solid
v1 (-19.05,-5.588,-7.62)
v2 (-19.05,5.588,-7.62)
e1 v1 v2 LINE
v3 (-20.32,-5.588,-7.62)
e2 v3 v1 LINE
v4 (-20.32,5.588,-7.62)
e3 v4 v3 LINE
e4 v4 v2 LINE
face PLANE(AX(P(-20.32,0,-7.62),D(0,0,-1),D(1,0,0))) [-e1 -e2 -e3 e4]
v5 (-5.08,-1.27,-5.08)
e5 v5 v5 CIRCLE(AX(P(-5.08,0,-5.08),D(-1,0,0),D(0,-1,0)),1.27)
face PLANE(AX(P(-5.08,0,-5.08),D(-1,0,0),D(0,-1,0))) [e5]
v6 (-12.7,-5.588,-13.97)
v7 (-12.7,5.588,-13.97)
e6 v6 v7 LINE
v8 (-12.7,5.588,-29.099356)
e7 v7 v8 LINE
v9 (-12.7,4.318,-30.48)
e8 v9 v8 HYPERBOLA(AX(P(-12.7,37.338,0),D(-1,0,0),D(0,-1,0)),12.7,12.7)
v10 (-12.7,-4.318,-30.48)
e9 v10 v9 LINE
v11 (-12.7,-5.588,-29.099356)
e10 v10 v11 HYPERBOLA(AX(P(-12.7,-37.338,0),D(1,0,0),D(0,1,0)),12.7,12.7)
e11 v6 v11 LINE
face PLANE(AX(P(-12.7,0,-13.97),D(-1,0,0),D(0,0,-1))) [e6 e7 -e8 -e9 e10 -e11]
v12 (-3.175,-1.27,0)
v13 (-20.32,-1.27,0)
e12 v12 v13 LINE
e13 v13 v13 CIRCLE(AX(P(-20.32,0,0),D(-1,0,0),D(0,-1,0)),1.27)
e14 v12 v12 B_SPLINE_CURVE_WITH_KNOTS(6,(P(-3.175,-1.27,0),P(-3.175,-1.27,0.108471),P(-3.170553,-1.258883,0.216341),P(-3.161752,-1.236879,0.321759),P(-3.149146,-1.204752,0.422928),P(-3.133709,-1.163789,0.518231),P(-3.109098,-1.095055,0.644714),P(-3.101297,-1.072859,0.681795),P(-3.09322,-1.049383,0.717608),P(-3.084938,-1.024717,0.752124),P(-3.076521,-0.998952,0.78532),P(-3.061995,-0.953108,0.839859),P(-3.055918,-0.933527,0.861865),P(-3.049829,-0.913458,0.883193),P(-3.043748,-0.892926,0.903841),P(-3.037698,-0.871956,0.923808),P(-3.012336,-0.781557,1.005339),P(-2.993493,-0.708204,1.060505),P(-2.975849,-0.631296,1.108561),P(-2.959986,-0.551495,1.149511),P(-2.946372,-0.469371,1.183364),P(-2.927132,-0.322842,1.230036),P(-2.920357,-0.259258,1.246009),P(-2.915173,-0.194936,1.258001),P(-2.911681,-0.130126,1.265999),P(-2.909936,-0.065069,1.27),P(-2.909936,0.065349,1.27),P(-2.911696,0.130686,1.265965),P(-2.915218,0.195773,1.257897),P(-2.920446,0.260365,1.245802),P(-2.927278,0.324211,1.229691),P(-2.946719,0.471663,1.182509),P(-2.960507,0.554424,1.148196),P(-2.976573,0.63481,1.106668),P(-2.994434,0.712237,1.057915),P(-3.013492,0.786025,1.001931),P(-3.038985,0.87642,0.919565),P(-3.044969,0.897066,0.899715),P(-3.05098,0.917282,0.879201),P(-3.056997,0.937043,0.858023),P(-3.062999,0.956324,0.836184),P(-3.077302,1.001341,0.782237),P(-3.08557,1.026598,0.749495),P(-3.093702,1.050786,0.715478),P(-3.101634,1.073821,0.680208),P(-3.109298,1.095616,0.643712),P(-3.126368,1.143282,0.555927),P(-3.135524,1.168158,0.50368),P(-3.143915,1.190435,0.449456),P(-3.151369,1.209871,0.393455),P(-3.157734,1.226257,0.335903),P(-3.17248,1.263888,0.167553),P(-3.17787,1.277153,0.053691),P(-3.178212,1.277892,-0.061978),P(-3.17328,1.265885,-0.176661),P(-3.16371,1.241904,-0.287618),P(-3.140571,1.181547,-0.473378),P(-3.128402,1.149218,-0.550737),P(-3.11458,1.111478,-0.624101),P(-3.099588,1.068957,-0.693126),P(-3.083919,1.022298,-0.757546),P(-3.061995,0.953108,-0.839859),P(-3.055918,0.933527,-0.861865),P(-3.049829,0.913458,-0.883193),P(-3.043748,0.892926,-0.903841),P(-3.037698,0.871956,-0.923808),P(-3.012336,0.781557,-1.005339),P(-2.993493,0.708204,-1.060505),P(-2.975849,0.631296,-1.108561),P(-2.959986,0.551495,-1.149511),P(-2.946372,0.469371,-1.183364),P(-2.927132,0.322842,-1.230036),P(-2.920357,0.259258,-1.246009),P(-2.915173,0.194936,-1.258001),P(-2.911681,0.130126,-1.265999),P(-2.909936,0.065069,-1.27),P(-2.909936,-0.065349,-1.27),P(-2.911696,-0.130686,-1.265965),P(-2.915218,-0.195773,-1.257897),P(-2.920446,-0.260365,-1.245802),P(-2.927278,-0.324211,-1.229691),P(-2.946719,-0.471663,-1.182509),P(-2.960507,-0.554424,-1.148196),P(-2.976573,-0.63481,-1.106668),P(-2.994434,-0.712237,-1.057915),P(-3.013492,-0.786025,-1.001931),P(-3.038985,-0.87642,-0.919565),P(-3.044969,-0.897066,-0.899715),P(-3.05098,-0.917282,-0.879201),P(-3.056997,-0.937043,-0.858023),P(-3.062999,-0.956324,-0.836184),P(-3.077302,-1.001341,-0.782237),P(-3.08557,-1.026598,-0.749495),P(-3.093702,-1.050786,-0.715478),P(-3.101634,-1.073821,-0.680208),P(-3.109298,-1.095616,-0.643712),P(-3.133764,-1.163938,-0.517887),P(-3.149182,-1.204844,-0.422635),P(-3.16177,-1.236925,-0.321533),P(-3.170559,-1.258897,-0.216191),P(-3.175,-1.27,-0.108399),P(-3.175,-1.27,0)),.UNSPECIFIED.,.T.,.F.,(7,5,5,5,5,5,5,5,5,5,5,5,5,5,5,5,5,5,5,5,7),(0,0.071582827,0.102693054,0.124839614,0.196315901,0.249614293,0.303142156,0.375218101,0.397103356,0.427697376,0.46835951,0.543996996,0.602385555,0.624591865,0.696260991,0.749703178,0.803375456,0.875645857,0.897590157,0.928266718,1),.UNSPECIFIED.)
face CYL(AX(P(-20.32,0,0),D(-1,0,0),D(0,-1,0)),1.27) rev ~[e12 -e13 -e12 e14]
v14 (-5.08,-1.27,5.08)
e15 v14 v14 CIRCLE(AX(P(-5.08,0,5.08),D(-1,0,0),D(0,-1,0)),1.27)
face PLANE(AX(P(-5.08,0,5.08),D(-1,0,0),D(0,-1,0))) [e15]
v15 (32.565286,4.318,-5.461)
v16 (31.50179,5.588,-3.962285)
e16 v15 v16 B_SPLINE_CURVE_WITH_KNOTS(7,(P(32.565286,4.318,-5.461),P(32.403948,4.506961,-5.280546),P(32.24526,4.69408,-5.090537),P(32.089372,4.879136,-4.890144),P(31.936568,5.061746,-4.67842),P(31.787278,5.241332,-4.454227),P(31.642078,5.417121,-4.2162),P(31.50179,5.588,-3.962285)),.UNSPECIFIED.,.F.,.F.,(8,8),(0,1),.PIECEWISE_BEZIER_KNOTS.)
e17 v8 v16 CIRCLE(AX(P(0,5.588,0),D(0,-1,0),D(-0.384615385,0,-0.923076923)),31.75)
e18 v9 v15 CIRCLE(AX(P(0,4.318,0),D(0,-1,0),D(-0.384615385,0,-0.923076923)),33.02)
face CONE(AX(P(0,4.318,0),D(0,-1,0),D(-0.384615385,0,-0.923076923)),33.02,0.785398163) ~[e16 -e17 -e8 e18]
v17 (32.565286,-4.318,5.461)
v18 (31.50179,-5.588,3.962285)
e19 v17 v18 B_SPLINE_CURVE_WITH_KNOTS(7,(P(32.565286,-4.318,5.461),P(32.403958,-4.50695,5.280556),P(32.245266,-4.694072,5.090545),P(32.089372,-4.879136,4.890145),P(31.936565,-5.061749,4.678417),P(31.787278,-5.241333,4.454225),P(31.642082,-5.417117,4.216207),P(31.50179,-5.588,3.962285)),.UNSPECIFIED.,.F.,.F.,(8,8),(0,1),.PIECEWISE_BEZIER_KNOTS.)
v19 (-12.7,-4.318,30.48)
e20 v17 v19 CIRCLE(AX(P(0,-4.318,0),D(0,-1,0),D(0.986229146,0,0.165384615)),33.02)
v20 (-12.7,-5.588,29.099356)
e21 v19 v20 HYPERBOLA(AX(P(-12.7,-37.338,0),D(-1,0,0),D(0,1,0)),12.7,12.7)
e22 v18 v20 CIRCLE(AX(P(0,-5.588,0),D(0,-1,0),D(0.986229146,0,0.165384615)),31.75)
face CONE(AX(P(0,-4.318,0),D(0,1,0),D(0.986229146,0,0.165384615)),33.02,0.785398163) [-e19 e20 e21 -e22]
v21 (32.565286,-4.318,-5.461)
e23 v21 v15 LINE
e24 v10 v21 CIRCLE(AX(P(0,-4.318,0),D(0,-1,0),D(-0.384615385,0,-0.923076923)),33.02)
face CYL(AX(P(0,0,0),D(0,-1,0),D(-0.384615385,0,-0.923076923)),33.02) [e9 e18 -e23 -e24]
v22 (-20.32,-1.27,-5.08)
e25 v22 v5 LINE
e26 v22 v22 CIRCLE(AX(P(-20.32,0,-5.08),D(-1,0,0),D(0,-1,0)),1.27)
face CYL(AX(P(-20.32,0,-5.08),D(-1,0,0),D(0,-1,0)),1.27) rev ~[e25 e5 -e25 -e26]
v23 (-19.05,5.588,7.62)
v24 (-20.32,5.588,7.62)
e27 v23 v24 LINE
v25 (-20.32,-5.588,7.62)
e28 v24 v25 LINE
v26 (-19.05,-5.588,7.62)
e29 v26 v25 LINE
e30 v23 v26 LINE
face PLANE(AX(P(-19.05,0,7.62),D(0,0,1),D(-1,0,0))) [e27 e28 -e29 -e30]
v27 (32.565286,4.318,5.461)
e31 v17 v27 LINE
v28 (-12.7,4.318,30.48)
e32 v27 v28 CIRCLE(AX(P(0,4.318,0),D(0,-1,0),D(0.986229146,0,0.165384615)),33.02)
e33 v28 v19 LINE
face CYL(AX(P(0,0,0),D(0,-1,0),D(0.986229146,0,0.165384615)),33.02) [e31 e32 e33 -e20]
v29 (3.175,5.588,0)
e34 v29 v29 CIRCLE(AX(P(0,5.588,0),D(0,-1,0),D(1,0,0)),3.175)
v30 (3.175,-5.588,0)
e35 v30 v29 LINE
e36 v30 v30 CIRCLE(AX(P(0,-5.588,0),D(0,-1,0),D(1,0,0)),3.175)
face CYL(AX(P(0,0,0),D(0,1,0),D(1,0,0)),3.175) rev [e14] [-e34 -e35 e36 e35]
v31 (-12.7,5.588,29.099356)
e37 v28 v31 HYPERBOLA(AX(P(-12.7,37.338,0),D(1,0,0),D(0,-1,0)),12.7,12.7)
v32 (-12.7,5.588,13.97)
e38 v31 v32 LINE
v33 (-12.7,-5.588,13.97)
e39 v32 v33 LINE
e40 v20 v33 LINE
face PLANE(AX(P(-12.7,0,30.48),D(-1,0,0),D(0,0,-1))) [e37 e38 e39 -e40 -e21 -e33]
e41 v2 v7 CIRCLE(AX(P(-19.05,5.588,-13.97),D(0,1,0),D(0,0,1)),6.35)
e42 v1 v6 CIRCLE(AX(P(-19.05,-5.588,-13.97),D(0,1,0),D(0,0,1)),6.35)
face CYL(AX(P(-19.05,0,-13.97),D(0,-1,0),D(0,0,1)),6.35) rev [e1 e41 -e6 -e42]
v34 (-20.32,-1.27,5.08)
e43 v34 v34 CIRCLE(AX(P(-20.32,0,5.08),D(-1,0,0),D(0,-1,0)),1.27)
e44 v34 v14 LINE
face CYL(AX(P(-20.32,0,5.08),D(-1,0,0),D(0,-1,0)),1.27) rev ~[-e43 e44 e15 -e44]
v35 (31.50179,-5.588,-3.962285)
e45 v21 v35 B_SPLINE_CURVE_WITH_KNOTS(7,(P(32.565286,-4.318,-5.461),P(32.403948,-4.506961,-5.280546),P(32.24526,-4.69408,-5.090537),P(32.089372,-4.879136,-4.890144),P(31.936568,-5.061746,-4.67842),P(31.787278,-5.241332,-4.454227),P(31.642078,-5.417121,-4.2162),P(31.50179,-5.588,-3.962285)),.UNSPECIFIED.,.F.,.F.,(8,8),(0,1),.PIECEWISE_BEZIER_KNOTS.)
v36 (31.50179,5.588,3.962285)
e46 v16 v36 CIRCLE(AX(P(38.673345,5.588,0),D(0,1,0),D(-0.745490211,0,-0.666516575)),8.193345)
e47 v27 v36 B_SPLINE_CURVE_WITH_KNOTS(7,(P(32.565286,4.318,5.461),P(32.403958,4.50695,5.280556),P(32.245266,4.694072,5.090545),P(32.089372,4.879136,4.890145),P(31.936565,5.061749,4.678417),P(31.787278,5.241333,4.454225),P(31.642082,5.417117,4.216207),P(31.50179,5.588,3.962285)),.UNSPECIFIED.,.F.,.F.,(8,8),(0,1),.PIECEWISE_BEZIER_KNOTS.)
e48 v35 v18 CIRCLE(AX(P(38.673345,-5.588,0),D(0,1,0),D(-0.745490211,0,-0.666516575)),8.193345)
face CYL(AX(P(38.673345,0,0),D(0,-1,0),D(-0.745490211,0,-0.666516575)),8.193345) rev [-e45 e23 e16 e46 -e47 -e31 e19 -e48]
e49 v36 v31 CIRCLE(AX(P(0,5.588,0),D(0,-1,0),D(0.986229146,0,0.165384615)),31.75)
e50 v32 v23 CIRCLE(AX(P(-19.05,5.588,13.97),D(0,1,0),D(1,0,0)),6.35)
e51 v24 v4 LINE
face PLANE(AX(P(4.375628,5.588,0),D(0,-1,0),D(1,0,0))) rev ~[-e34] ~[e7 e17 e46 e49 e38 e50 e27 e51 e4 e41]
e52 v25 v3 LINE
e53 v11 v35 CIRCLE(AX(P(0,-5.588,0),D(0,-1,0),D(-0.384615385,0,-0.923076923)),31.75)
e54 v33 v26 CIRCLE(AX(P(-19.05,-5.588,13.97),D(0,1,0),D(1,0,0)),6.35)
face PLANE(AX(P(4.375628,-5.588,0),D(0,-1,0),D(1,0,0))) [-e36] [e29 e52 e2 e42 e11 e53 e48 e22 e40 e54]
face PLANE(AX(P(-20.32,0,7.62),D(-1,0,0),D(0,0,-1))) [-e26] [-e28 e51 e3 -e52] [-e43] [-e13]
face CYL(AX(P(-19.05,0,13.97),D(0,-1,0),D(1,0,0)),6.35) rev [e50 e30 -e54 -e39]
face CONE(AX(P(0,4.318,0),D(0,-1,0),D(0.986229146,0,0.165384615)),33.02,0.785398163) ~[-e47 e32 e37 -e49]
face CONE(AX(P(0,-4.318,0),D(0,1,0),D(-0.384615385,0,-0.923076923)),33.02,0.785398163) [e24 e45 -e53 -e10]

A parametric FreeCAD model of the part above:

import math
import FreeCAD as App
import Part
import Sketcher

V = App.Vector
Q = App.Units.Quantity


def edges_at(feature, points):
    """Names of the edges that pass closest to the given points."""
    edges = feature.Shape.Edges
    near = lambda p: min(range(len(edges)), key=lambda i: edges[i].distToShape(Part.Vertex(*p))[0])
    return sorted({f"Edge{near(p) + 1}" for p in points})

doc = App.newDocument("Part")
params = doc.addObject("Spreadsheet::Sheet", "Params")
for row, (alias, value) in enumerate([
    ("sketch1_radius", "1.3 in"),
    ("sketch1_diameter", "0.25 in"),
    ("sketch1_radius2", "0.25 in"),
    ("sketch1_height", "0.6 in"),
    ("sketch1_width", "0.05 in"),
    ("pad1_length", "0.44 in"),
    ("sketch2_diameter", "0.1 in"),
    ("pocket1_length", "0.6 in"),
    ("sketch3_diameter", "0.1 in"),
    ("pocket2_length", "0.75 in"),
    ("chamfer_size", "0.05 in"),
], start=1):
    params.set(f"A{row}", alias)
    params.set(f"B{row}", "=" + value)
    params.setAlias(f"B{row}", alias)

body = doc.addObject("PartDesign::Body", "Body")

sketch1 = doc.addObject("Sketcher::SketchObject", "Sketch")
body.addObject(sketch1)
sketch1.AttachmentSupport = (doc.XZ_Plane, [""])
sketch1.MapMode = "FlatFace"
sketch1.addGeometry([
    Part.ArcOfCircle(Part.Circle(V(0, 0, 0), V(0, 0, 1), 33), math.radians(10), math.radians(113)),
    Part.LineSegment(V(-12.7, 30.5, 0), V(-12.7, 14, 0)),
    Part.ArcOfCircle(Part.Circle(V(-19.1, 14, 0), V(0, 0, 1), 6.3), math.radians(-90), math.radians(0)),
    Part.LineSegment(V(-19.1, 7.6, 0), V(-20.3, 7.6, 0)),
    Part.LineSegment(V(-20.3, 7.6, 0), V(-20.3, -7.6, 0)),
    Part.LineSegment(V(-20.3, -7.6, 0), V(-19.1, -7.6, 0)),
    Part.ArcOfCircle(Part.Circle(V(-19.1, -14, 0), V(0, 0, 1), 6.3), math.radians(0), math.radians(90)),
    Part.LineSegment(V(-12.7, -14, 0), V(-12.7, -30.5, 0)),
    Part.ArcOfCircle(Part.Circle(V(0, 0, 0), V(0, 0, 1), 33), math.radians(-113), math.radians(-10)),
    Part.ArcOfCircle(Part.Circle(V(38.7, 0, 0), V(0, 0, 1), 8.2), math.radians(138), math.radians(222)),
    Part.Circle(V(0, 0, 0), V(0, 0, 1), 3.2),
], False)
sketch1.addConstraint([
    Sketcher.Constraint("Coincident", 0, 2, 1, 1),
    Sketcher.Constraint("Tangent", 1, 2, 2, 2),
    Sketcher.Constraint("Tangent", 2, 1, 3, 1),
    Sketcher.Constraint("Coincident", 3, 2, 4, 1),
    Sketcher.Constraint("Coincident", 4, 2, 5, 1),
    Sketcher.Constraint("Tangent", 5, 2, 6, 2),
    Sketcher.Constraint("Tangent", 6, 1, 7, 1),
    Sketcher.Constraint("Coincident", 7, 2, 8, 1),
    Sketcher.Constraint("Coincident", 8, 2, 9, 2),
    Sketcher.Constraint("Coincident", 9, 1, 0, 1),
    Sketcher.Constraint("Vertical", 1),
    Sketcher.Constraint("Horizontal", 3),
    Sketcher.Constraint("Vertical", 4),
    Sketcher.Constraint("Horizontal", 5),
    Sketcher.Constraint("Vertical", 7),
    Sketcher.Constraint("Coincident", 0, 3, -1, 1),
    Sketcher.Constraint("Coincident", 8, 3, -1, 1),
    Sketcher.Constraint("Coincident", 10, 3, -1, 1),
    Sketcher.Constraint("Equal", 2, 6),
    Sketcher.Constraint("Equal", 0, 8),
    Sketcher.Constraint("Symmetric", 2, 3, 6, 3, -1),
    Sketcher.Constraint("PointOnObject", 9, 3, -1),
    Sketcher.Constraint("Radius", 0, Q("1.3 in")),
    Sketcher.Constraint("Diameter", 10, Q("0.25 in")),
    Sketcher.Constraint("Radius", 2, Q("0.25 in")),
    Sketcher.Constraint("DistanceY", 4, 2, 4, 1, Q("0.6 in")),
    Sketcher.Constraint("DistanceX", 3, 2, 3, 1, Q("0.05 in")),
    Sketcher.Constraint("DistanceY", 1, 2, 1, 1, Q("0.65 in")),
    Sketcher.Constraint("DistanceY", 8, 2, 9, 1, Q("0.43 in")),
    Sketcher.Constraint("Radius", 9, Q("8.193345 mm")),
])
sketch1.setExpression("Constraints[22]", "Params.sketch1_radius")
sketch1.setExpression("Constraints[23]", "Params.sketch1_diameter")
sketch1.setExpression("Constraints[24]", "Params.sketch1_radius2")
sketch1.setExpression("Constraints[25]", "Params.sketch1_height")
sketch1.setExpression("Constraints[26]", "Params.sketch1_width")
pad1 = doc.addObject("PartDesign::Pad", "Pad")
body.addObject(pad1)
pad1.Profile = sketch1
pad1.setExpression("Length", "Params.pad1_length")
pad1.Midplane = True

sketch2 = doc.addObject("Sketcher::SketchObject", "Sketch001")
body.addObject(sketch2)
sketch2.AttachmentSupport = (doc.YZ_Plane, [""])
sketch2.MapMode = "FlatFace"
sketch2.AttachmentOffset = App.Placement(V(0, 0, -0.8 * 25.4), App.Rotation())
sketch2.addGeometry([
    Part.Circle(V(0, 0, 0), V(0, 0, 1), 1.3),
    Part.Circle(V(0, 5.1, 0), V(0, 0, 1), 1.3),
    Part.Circle(V(0, -5.1, 0), V(0, 0, 1), 1.3),
], False)
sketch2.addConstraint([
    Sketcher.Constraint("Coincident", 0, 3, -1, 1),
    Sketcher.Constraint("Equal", 0, 1),
    Sketcher.Constraint("Equal", 1, 2),
    Sketcher.Constraint("Symmetric", 1, 3, 2, 3, -1, 1),
    Sketcher.Constraint("PointOnObject", 1, 3, -2),
    Sketcher.Constraint("Diameter", 0, Q("0.1 in")),
    Sketcher.Constraint("DistanceY", -1, 1, 1, 3, Q("0.2 in")),
])
sketch2.setExpression("Constraints[5]", "Params.sketch2_diameter")
pocket1 = doc.addObject("PartDesign::Pocket", "Pocket")
body.addObject(pocket1)
pocket1.Profile = sketch2
pocket1.setExpression("Length", "Params.pocket1_length")
pocket1.Reversed = True

sketch3 = doc.addObject("Sketcher::SketchObject", "Sketch002")
body.addObject(sketch3)
sketch3.AttachmentSupport = (doc.YZ_Plane, [""])
sketch3.MapMode = "FlatFace"
sketch3.AttachmentOffset = App.Placement(V(0, 0, -0.8 * 25.4), App.Rotation())
sketch3.addGeometry(Part.Circle(V(0, 0, 0), V(0, 0, 1), 1.3), False)
sketch3.addConstraint([
    Sketcher.Constraint("Coincident", 0, 3, -1, 1),
    Sketcher.Constraint("Diameter", 0, Q("0.1 in")),
])
sketch3.setExpression("Constraints[1]", "Params.sketch3_diameter")
pocket2 = doc.addObject("PartDesign::Pocket", "Pocket001")
body.addObject(pocket2)
pocket2.Profile = sketch3
pocket2.setExpression("Length", "Params.pocket2_length")
pocket2.Reversed = True
doc.recompute()

chamfer = doc.addObject("PartDesign::Chamfer", "Chamfer")
body.addObject(chamfer)
chamfer.Base = (pocket2, edges_at(pocket2, [
    (15.973, -5.588, 28.899),
    (15.973, -5.588, -28.899),
    (15.973, 5.588, 28.899),
    (15.973, 5.588, -28.899),
]))
chamfer.setExpression("Size", "Params.chamfer_size")

doc.recompute()
